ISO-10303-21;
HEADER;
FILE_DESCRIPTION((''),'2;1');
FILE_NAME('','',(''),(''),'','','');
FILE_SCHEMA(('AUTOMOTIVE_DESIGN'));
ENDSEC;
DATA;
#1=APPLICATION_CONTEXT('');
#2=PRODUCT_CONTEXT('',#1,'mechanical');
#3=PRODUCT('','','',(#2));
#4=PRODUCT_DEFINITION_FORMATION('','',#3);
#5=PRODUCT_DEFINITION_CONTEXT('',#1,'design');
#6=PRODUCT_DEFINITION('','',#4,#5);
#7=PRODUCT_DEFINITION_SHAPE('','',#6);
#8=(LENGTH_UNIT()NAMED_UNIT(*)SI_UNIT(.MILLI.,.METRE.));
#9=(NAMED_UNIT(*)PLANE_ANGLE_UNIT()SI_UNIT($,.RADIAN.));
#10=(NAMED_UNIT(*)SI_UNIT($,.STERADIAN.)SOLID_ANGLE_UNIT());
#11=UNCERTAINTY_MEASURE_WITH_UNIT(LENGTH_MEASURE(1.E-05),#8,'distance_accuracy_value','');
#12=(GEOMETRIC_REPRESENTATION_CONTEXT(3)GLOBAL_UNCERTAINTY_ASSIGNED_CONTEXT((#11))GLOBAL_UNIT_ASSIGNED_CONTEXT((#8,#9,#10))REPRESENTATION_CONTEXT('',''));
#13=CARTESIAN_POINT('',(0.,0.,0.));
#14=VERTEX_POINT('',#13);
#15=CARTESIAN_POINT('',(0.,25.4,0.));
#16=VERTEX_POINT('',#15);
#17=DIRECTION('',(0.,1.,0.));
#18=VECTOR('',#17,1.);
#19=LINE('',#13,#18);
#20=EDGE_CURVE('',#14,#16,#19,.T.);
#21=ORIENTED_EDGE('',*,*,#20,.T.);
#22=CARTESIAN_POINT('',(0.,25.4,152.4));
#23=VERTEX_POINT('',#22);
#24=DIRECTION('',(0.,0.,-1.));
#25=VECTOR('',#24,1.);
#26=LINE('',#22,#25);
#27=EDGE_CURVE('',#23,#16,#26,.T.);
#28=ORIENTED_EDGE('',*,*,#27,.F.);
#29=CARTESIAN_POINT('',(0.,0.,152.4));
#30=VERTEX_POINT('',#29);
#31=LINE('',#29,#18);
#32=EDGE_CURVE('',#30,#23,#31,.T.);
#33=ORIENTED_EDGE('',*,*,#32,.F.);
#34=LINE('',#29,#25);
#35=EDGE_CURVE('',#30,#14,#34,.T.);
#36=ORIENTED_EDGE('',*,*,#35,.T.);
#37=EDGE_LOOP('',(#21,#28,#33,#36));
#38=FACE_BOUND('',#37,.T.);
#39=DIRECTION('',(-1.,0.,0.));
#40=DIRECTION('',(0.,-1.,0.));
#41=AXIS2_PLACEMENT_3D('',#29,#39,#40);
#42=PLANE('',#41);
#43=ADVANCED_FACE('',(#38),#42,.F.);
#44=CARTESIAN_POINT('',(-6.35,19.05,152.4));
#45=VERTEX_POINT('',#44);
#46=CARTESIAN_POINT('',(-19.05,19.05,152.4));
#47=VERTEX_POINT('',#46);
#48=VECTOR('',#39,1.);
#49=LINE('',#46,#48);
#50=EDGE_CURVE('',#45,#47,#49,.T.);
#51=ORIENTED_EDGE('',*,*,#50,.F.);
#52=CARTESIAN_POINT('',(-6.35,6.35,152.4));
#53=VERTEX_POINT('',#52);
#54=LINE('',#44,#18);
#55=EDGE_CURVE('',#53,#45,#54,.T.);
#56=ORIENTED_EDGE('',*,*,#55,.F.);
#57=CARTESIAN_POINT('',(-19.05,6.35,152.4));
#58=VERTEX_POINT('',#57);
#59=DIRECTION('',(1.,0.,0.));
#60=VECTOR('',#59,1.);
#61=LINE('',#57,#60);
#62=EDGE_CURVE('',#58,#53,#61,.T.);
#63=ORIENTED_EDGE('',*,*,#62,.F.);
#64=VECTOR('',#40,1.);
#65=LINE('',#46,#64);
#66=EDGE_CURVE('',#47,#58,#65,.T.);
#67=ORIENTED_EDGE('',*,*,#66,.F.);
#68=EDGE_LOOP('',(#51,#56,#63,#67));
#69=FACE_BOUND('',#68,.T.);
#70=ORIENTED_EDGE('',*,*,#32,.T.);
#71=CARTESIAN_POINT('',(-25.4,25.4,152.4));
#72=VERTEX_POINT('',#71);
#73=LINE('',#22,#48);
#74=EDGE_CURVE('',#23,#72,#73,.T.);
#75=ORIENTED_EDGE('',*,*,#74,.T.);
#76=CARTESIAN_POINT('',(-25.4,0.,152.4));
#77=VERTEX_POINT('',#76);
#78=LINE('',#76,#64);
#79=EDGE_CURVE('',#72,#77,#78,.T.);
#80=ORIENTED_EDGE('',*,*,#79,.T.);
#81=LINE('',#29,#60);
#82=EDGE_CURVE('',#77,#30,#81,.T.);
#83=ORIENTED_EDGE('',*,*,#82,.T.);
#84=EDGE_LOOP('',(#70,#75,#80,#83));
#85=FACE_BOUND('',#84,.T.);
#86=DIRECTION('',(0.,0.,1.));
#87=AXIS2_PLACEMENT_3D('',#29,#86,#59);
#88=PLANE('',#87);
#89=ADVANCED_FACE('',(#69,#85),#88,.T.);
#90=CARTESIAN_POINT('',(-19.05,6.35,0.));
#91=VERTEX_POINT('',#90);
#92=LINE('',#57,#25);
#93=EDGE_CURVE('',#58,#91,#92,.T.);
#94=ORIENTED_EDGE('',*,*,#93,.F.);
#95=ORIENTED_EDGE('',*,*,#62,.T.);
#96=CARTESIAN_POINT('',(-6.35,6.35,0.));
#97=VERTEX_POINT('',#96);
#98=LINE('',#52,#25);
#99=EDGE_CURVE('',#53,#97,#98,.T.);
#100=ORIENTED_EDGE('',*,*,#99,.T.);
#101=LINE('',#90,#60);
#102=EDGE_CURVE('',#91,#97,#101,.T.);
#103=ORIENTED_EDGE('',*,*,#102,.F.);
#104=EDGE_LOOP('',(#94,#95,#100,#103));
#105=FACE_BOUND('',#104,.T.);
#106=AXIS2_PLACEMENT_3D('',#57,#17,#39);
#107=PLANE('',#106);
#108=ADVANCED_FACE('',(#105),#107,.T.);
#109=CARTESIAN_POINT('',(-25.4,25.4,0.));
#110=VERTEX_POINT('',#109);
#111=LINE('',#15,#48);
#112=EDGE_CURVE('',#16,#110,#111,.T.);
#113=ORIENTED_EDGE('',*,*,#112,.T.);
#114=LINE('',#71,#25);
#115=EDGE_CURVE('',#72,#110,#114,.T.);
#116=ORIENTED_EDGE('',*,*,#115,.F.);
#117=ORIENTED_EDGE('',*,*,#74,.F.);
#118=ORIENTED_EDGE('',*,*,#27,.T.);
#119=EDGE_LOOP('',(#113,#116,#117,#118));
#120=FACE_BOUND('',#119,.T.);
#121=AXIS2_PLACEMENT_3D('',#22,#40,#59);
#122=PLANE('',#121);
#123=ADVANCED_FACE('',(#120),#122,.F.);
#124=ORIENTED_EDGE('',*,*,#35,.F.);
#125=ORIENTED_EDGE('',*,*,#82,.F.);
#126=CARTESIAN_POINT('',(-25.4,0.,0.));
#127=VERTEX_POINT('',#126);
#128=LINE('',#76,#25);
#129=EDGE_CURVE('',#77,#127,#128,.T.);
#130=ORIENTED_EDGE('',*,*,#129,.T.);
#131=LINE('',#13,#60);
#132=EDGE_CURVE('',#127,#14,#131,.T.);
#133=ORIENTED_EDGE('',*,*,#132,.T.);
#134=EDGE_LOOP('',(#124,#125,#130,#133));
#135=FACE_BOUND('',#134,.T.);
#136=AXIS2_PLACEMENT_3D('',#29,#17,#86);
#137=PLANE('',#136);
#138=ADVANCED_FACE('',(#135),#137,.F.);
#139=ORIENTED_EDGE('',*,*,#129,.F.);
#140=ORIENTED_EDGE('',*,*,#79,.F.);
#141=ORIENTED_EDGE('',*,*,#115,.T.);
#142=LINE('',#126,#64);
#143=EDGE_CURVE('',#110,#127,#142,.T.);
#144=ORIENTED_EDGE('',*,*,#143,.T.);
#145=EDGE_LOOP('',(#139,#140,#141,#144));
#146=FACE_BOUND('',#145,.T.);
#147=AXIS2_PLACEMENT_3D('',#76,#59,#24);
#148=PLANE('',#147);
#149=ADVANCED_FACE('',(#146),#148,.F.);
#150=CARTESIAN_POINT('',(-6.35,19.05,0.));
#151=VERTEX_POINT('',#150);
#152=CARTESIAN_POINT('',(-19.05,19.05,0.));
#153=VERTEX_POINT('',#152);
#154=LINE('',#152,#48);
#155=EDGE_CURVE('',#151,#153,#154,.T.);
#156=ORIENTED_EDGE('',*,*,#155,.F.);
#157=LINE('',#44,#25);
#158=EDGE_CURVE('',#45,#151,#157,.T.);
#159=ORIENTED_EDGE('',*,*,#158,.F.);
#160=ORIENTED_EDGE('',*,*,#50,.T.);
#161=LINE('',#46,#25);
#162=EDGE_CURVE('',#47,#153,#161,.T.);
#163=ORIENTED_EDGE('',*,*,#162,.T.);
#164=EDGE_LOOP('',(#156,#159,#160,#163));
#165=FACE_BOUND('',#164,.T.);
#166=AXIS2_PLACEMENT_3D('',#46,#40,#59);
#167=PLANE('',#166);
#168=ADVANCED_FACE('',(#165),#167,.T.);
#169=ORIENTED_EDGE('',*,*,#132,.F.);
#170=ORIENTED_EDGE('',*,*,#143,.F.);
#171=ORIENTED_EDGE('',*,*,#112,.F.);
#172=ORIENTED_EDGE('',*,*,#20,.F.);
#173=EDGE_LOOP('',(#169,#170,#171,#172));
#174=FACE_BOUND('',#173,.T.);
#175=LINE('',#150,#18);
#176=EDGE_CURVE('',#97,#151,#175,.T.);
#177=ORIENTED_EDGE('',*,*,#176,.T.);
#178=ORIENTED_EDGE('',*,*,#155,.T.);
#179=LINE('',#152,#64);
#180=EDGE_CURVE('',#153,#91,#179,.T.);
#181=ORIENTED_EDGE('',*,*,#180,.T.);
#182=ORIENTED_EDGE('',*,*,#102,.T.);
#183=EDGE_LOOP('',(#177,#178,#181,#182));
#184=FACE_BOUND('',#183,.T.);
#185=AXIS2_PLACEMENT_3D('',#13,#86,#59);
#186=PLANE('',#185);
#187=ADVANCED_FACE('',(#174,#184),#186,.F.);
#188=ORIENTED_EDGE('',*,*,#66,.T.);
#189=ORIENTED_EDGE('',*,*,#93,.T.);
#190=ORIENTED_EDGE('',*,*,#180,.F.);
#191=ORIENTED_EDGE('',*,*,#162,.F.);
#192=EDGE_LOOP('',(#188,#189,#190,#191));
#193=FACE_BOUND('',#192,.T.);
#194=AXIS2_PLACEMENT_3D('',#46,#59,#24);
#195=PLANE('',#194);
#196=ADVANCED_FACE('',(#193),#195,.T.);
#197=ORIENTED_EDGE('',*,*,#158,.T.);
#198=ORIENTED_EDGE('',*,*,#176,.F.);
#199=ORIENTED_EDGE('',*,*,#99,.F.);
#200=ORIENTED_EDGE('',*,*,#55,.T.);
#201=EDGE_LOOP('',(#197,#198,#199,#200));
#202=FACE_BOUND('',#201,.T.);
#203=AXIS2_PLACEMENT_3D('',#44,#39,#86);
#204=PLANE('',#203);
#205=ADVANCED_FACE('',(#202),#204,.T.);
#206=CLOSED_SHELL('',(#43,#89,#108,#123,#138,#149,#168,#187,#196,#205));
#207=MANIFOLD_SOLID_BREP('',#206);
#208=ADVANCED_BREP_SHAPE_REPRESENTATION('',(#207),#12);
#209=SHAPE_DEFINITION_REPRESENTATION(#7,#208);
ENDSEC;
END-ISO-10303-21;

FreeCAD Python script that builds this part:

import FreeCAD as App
import Part
import Sketcher
from FreeCAD import Vector
Q = App.Units.Quantity


def add_polygon(sketch, points):
    """Adds a closed chain of lines whose ends are joined by coincident constraints."""
    first, n = sketch.GeometryCount, len(points)
    for a, b in zip(points, points[1:] + points[:1]):
        sketch.addGeometry(Part.LineSegment(App.Vector(*a, 0), App.Vector(*b, 0)), False)
    for i in range(n):
        sketch.addConstraint(Sketcher.Constraint("Coincident", first + i, 2, first + (i + 1) % n, 1))

doc = App.newDocument("Part")
body = doc.addObject("PartDesign::Body", "Body")

sketch1 = doc.addObject("Sketcher::SketchObject", "Sketch")
body.addObject(sketch1)
sketch1.AttachmentSupport = (doc.XY_Plane, [""])
sketch1.MapMode = "FlatFace"
add_polygon(sketch1, [(-25.4, 25.4), (-25.4, 0), (0, 0), (0, 25.4)])
add_polygon(sketch1, [(-6.35, 6.35), (-19.05, 6.35), (-19.05, 19.05), (-6.35, 19.05)])
sketch1.addConstraint(Sketcher.Constraint("Vertical", 0))
sketch1.addConstraint(Sketcher.Constraint("Horizontal", 1))
sketch1.addConstraint(Sketcher.Constraint("Vertical", 2))
sketch1.addConstraint(Sketcher.Constraint("Horizontal", 3))
sketch1.addConstraint(Sketcher.Constraint("Horizontal", 4))
sketch1.addConstraint(Sketcher.Constraint("Vertical", 5))
sketch1.addConstraint(Sketcher.Constraint("Horizontal", 6))
sketch1.addConstraint(Sketcher.Constraint("Vertical", 7))
sketch1.addConstraint(Sketcher.Constraint("Coincident", 1, 2, -1, 1))
sketch1.addConstraint(Sketcher.Constraint("Equal", 3, 0))
sketch1.addConstraint(Sketcher.Constraint("Equal", 6, 5))
sketch1.addConstraint(Sketcher.Constraint("DistanceX", 1, 1, 1, 2, Q("1 in")))
sketch1.addConstraint(Sketcher.Constraint("DistanceX", 4, 2, 4, 1, Q("0.5 in")))
sketch1.addConstraint(Sketcher.Constraint("DistanceX", 4, 2, -1, 1, Q("0.75 in")))
sketch1.addConstraint(Sketcher.Constraint("DistanceY", -1, 1, 4, 2, Q("0.25 in")))
pad1 = doc.addObject("PartDesign::Pad", "Pad")
body.addObject(pad1)
pad1.Profile = sketch1
pad1.Length = Q("6 in")

doc.recompute()
